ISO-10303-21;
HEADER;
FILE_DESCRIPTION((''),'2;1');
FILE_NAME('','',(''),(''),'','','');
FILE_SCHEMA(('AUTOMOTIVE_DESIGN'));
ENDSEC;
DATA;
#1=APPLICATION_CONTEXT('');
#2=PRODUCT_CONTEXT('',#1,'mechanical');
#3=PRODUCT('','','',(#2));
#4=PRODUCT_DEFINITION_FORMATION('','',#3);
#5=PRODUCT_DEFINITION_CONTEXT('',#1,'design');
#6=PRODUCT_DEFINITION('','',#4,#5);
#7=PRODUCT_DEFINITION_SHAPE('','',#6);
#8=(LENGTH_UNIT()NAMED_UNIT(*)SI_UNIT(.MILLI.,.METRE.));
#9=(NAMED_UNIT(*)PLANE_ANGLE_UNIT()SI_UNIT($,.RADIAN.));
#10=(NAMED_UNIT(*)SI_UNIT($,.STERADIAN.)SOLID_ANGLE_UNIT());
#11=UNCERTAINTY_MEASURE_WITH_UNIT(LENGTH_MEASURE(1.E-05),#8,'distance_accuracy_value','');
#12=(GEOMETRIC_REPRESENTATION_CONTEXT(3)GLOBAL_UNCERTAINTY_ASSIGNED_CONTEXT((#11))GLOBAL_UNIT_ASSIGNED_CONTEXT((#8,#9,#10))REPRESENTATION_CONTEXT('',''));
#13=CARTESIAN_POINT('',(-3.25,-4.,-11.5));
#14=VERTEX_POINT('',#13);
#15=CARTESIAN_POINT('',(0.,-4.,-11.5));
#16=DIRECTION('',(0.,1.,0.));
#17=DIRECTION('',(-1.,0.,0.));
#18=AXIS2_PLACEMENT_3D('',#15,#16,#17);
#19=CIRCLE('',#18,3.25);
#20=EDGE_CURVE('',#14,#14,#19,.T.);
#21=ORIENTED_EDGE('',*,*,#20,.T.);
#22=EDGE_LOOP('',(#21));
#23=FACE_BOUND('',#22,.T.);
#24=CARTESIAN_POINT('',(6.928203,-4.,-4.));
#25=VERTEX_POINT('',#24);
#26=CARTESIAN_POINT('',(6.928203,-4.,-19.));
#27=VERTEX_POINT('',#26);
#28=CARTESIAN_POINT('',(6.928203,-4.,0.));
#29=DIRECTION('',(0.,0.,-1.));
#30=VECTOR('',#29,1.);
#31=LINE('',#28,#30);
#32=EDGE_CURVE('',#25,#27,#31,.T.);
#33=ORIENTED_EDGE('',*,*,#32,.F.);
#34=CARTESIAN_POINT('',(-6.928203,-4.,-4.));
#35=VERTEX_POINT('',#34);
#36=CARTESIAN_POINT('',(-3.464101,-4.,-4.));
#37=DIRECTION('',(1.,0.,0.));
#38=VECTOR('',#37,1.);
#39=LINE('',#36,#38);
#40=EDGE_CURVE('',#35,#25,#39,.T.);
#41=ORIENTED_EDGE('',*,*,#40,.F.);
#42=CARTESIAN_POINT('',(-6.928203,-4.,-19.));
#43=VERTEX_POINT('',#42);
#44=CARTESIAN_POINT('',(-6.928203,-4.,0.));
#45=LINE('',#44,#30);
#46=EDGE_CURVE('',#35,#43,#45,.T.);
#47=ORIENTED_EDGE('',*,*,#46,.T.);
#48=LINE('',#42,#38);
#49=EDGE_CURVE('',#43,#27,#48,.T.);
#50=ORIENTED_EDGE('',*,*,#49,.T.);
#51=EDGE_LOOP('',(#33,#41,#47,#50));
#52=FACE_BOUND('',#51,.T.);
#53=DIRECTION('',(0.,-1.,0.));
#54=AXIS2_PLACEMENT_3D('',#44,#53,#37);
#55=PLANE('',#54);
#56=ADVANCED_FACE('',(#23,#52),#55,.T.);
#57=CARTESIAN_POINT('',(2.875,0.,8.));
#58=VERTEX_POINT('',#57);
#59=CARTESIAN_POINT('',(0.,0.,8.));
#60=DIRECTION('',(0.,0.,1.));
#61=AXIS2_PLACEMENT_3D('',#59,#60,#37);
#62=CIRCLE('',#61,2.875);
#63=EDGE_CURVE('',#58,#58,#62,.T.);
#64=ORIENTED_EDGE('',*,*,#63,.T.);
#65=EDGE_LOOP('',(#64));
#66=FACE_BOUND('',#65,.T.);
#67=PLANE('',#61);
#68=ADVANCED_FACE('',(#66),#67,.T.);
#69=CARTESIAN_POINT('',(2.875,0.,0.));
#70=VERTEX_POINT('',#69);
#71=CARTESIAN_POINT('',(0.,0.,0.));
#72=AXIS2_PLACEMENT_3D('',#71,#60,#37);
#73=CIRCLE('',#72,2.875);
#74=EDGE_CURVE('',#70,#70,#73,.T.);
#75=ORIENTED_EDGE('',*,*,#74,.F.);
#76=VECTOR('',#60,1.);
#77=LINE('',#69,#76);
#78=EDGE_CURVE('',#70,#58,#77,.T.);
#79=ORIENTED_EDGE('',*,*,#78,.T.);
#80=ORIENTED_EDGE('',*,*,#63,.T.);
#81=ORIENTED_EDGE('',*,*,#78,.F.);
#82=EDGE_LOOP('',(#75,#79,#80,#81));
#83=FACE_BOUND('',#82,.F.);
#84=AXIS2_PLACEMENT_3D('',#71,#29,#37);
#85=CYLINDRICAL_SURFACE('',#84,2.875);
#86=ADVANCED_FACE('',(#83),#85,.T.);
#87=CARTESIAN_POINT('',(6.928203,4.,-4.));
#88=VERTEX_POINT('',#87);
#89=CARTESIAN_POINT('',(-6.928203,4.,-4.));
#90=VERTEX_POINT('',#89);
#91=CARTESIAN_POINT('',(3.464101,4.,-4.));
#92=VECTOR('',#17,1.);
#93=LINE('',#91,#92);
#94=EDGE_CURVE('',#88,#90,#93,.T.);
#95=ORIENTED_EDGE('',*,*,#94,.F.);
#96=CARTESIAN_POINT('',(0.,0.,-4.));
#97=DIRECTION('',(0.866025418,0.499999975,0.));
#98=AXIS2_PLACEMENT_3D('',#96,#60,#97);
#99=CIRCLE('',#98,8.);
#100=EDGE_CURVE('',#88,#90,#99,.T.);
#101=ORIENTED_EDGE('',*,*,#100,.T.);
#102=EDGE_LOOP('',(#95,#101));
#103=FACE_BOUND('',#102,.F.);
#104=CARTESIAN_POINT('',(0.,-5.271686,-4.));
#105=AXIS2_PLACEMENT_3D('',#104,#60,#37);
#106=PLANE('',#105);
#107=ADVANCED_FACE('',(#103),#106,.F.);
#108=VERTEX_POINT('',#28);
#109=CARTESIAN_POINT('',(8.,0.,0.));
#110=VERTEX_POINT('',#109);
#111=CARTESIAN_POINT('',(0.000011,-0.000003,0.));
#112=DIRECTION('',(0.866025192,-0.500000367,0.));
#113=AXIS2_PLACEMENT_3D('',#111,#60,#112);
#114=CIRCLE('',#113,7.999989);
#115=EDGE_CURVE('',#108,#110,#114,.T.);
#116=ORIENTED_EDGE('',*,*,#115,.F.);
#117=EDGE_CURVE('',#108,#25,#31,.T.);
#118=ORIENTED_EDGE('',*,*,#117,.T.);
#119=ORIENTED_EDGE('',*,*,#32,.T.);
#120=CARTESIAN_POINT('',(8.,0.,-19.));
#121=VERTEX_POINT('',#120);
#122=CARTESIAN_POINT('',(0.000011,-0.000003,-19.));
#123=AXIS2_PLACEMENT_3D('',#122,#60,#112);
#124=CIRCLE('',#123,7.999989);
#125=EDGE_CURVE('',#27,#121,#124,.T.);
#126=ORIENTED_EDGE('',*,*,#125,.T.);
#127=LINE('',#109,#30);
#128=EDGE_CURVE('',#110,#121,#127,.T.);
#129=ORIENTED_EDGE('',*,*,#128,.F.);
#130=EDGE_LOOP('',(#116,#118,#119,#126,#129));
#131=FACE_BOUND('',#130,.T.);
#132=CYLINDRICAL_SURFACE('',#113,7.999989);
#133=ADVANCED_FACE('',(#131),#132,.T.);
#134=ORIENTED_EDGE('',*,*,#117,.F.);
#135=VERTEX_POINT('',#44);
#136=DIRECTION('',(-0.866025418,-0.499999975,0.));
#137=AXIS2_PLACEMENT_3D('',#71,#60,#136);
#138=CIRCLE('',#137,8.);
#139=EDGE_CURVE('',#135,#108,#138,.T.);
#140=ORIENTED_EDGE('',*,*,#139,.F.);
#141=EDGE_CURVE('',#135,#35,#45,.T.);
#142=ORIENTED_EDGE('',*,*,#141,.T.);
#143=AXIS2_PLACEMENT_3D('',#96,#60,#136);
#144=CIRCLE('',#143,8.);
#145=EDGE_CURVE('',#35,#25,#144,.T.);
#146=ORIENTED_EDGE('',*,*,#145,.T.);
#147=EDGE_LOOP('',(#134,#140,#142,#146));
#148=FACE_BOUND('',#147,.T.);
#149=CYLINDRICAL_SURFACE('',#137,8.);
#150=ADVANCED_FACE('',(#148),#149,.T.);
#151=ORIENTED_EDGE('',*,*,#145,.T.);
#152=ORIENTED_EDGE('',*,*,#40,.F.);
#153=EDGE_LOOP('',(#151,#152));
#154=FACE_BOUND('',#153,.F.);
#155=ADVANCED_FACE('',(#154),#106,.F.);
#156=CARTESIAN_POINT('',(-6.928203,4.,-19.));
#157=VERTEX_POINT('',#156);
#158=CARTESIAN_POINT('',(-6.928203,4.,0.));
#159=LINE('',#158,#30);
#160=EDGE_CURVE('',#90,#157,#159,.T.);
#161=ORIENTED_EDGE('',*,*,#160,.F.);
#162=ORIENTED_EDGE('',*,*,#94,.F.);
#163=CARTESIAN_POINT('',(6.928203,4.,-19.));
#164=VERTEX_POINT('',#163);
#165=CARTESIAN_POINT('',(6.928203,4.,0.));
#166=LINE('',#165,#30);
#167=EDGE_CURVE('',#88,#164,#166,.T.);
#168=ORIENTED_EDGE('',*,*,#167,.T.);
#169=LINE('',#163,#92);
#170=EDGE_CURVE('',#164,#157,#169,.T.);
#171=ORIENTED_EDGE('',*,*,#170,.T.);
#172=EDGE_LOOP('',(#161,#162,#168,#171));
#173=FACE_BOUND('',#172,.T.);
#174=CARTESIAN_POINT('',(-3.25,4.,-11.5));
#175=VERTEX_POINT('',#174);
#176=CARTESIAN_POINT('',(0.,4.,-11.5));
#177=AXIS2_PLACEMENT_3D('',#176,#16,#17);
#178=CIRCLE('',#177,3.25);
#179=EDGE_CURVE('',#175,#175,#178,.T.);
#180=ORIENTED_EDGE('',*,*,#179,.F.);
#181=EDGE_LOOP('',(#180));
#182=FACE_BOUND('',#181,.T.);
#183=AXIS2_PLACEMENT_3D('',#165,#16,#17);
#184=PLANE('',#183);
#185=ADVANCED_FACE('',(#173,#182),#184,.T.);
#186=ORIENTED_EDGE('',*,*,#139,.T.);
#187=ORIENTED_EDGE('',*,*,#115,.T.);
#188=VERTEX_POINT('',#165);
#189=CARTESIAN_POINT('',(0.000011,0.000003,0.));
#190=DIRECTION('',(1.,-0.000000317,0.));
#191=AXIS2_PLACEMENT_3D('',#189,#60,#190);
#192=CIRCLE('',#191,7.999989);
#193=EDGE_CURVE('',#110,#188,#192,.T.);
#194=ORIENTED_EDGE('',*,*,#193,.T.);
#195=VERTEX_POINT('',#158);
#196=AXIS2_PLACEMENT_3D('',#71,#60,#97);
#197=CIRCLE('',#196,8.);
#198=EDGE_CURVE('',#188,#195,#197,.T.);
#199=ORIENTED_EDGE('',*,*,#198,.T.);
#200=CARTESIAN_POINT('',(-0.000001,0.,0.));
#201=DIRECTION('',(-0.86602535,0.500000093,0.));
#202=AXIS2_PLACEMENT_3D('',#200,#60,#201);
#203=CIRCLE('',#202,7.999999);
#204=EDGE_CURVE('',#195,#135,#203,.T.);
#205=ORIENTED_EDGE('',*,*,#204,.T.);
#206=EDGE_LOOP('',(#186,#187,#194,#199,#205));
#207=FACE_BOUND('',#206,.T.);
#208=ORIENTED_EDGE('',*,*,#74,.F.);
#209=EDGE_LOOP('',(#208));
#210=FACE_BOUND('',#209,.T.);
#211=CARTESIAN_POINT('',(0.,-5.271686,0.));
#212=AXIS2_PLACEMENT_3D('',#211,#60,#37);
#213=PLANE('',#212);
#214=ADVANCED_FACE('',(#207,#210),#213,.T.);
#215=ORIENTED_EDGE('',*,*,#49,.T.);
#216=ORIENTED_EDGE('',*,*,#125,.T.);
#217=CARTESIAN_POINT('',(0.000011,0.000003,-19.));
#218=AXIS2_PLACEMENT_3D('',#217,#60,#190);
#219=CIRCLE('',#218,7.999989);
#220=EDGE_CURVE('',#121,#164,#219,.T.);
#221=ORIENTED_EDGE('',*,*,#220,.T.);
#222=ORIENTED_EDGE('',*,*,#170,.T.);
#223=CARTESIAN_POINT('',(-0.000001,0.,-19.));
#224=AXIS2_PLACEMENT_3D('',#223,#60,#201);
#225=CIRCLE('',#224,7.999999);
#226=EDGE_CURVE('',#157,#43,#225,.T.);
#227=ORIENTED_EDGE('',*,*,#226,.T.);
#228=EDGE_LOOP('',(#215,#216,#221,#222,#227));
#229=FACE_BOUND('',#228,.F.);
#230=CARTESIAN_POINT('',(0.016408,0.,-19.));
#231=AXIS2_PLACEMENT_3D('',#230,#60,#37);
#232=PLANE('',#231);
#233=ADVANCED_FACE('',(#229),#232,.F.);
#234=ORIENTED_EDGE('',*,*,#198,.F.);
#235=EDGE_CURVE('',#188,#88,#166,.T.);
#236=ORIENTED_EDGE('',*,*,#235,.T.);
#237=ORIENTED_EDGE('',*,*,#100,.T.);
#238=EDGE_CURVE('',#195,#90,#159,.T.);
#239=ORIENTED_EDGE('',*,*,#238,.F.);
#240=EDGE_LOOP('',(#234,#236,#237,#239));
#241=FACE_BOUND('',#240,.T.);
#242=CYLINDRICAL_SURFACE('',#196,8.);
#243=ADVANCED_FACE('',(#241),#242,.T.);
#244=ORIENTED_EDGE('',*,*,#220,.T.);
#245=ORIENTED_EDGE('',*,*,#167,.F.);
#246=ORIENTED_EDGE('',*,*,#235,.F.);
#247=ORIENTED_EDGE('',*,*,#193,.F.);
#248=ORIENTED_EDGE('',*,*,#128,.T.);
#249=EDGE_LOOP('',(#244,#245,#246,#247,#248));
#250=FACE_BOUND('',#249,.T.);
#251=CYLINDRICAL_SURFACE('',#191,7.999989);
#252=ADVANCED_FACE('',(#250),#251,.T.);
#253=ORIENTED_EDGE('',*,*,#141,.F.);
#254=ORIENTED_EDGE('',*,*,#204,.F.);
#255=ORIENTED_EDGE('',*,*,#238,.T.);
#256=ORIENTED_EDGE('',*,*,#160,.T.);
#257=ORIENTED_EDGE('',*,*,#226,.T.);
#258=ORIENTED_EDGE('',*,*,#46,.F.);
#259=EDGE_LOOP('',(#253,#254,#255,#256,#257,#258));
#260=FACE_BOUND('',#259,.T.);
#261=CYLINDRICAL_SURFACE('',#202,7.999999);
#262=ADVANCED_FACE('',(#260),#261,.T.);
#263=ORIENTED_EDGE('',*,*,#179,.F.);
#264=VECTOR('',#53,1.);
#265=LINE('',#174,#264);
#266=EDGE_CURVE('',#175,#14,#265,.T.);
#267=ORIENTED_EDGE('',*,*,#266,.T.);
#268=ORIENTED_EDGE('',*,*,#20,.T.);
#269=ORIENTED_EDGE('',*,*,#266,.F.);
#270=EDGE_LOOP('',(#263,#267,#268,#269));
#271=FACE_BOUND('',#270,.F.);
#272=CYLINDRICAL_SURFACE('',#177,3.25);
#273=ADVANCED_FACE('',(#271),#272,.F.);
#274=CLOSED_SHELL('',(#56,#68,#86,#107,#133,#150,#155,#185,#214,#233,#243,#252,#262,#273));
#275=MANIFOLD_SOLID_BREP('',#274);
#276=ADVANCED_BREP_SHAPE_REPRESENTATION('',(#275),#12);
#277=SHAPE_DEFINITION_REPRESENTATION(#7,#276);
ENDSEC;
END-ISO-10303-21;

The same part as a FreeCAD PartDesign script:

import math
import FreeCAD as App
import Part
import Sketcher
Q = App.Units.Quantity

doc = App.newDocument("Part")
body = doc.addObject("PartDesign::Body", "Body")

sketch1 = body.newObject("Sketcher::SketchObject", "Sketch")
sketch1.AttachmentSupport = (doc.getObject("XY_Plane"), [""])
sketch1.MapMode = "FlatFace"
sketch1.addGeometry(Part.Circle(App.Vector(0, 0, 0), App.Vector(0, 0, 1), 2.9), False)
sketch1.addConstraint(Sketcher.Constraint("Coincident", 0, 3, -1, 1))
sketch1.addConstraint(Sketcher.Constraint("Diameter", 0, Q("5.75 mm")))
pad1 = body.newObject("PartDesign::Pad", "Pad")
pad1.Profile = sketch1
pad1.Length = 8

sketch2 = body.newObject("Sketcher::SketchObject", "Sketch001")
sketch2.AttachmentSupport = (doc.getObject("XY_Plane"), [""])
sketch2.MapMode = "FlatFace"
sketch2.addGeometry(Part.ArcOfCircle(Part.Circle(App.Vector(0, 0, 0), App.Vector(0, 0, 1), 8), math.radians(-150), math.radians(-30)), False)
sketch2.addGeometry(Part.ArcOfCircle(Part.Circle(App.Vector(0, 0, 0), App.Vector(0, 0, 1), 8), math.radians(-30), math.radians(0)), False)
sketch2.addGeometry(Part.ArcOfCircle(Part.Circle(App.Vector(0, 0, 0), App.Vector(0, 0, 1), 8), math.radians(0), math.radians(30)), False)
sketch2.addGeometry(Part.ArcOfCircle(Part.Circle(App.Vector(0, 0, 0), App.Vector(0, 0, 1), 8), math.radians(30), math.radians(150)), False)
sketch2.addGeometry(Part.ArcOfCircle(Part.Circle(App.Vector(0, 0, 0), App.Vector(0, 0, 1), 8), math.radians(150), math.radians(210)), False)
sketch2.addConstraint(Sketcher.Constraint("Tangent", 0, 2, 1, 1))
sketch2.addConstraint(Sketcher.Constraint("Tangent", 1, 2, 2, 1))
sketch2.addConstraint(Sketcher.Constraint("Tangent", 2, 2, 3, 1))
sketch2.addConstraint(Sketcher.Constraint("Tangent", 3, 2, 4, 1))
sketch2.addConstraint(Sketcher.Constraint("Tangent", 4, 2, 0, 1))
sketch2.addConstraint(Sketcher.Constraint("Coincident", 0, 3, -1, 1))
sketch2.addConstraint(Sketcher.Constraint("Coincident", 3, 3, -1, 1))
sketch2.addConstraint(Sketcher.Constraint("PointOnObject", 1, 2, -1))
sketch2.addConstraint(Sketcher.Constraint("Horizontal", 2, 2, 3, 2))
sketch2.addConstraint(Sketcher.Constraint("Horizontal", 0, 2, 4, 2))
sketch2.addConstraint(Sketcher.Constraint("Vertical", 0, 2, 2, 2))
sketch2.addConstraint(Sketcher.Constraint("Radius", 0, Q("8 mm")))
sketch2.addConstraint(Sketcher.Constraint("DistanceY", 0, 2, -1, 1, Q("4 mm")))
pad2 = body.newObject("PartDesign::Pad", "Pad001")
pad2.Profile = sketch2
pad2.Length = 4
pad2.Reversed = True

sketch3 = body.newObject("Sketcher::SketchObject", "Sketch002")
sketch3.AttachmentSupport = (doc.getObject("XY_Plane"), [""])
sketch3.MapMode = "FlatFace"
sketch3.addGeometry(Part.ArcOfCircle(Part.Circle(App.Vector(0, 0, 0), App.Vector(0, 0, 1), 8), math.radians(-30), math.radians(0)), False)
sketch3.addGeometry(Part.ArcOfCircle(Part.Circle(App.Vector(0, 0, 0), App.Vector(0, 0, 1), 8), math.radians(0), math.radians(30)), False)
sketch3.addGeometry(Part.LineSegment(App.Vector(6.9, 4, 0), App.Vector(-6.9, 4, 0)), False)
sketch3.addGeometry(Part.ArcOfCircle(Part.Circle(App.Vector(0, 0, 0), App.Vector(0, 0, 1), 8), math.radians(150), math.radians(210)), False)
sketch3.addGeometry(Part.LineSegment(App.Vector(-6.9, -4, 0), App.Vector(6.9, -4, 0)), False)
sketch3.addConstraint(Sketcher.Constraint("Tangent", 0, 2, 1, 1))
sketch3.addConstraint(Sketcher.Constraint("Coincident", 1, 2, 2, 1))
sketch3.addConstraint(Sketcher.Constraint("Coincident", 2, 2, 3, 1))
sketch3.addConstraint(Sketcher.Constraint("Coincident", 3, 2, 4, 1))
sketch3.addConstraint(Sketcher.Constraint("Coincident", 4, 2, 0, 1))
sketch3.addConstraint(Sketcher.Constraint("Horizontal", 2))
sketch3.addConstraint(Sketcher.Constraint("Horizontal", 4))
sketch3.addConstraint(Sketcher.Constraint("Coincident", 3, 3, -1, 1))
sketch3.addConstraint(Sketcher.Constraint("Equal", 0, 1))
sketch3.addConstraint(Sketcher.Constraint("Symmetric", 1, 2, 3, 2, -1, 1))
sketch3.addConstraint(Sketcher.Constraint("PointOnObject", 0, 2, -1))
sketch3.addConstraint(Sketcher.Constraint("Vertical", 1, 2, 4, 2))
sketch3.addConstraint(Sketcher.Constraint("Radius", 3, Q("7.999999 mm")))
sketch3.addConstraint(Sketcher.Constraint("DistanceX", -1, 1, 0, 2, Q("8 mm")))
sketch3.addConstraint(Sketcher.Constraint("DistanceY", -1, 1, 1, 2, Q("4 mm")))
pad3 = body.newObject("PartDesign::Pad", "Pad002")
pad3.Profile = sketch3
pad3.Length = 19
pad3.Reversed = True

sketch4 = body.newObject("Sketcher::SketchObject", "Sketch003")
sketch4.AttachmentSupport = (doc.getObject("XZ_Plane"), [""])
sketch4.MapMode = "FlatFace"
sketch4.AttachmentOffset = App.Placement(App.Vector(0, 0, -4), App.Rotation())
sketch4.addGeometry(Part.Circle(App.Vector(0, -11.5, 0), App.Vector(0, 0, 1), 3.2), False)
sketch4.addConstraint(Sketcher.Constraint("PointOnObject", 0, 3, -2))
sketch4.addConstraint(Sketcher.Constraint("Diameter", 0, Q("6.5 mm")))
sketch4.addConstraint(Sketcher.Constraint("DistanceY", 0, 3, -1, 1, Q("11.5 mm")))
pocket1 = body.newObject("PartDesign::Pocket", "Pocket")
pocket1.Profile = sketch4
pocket1.Length = 25
pocket1.Reversed = True

doc.recompute()
